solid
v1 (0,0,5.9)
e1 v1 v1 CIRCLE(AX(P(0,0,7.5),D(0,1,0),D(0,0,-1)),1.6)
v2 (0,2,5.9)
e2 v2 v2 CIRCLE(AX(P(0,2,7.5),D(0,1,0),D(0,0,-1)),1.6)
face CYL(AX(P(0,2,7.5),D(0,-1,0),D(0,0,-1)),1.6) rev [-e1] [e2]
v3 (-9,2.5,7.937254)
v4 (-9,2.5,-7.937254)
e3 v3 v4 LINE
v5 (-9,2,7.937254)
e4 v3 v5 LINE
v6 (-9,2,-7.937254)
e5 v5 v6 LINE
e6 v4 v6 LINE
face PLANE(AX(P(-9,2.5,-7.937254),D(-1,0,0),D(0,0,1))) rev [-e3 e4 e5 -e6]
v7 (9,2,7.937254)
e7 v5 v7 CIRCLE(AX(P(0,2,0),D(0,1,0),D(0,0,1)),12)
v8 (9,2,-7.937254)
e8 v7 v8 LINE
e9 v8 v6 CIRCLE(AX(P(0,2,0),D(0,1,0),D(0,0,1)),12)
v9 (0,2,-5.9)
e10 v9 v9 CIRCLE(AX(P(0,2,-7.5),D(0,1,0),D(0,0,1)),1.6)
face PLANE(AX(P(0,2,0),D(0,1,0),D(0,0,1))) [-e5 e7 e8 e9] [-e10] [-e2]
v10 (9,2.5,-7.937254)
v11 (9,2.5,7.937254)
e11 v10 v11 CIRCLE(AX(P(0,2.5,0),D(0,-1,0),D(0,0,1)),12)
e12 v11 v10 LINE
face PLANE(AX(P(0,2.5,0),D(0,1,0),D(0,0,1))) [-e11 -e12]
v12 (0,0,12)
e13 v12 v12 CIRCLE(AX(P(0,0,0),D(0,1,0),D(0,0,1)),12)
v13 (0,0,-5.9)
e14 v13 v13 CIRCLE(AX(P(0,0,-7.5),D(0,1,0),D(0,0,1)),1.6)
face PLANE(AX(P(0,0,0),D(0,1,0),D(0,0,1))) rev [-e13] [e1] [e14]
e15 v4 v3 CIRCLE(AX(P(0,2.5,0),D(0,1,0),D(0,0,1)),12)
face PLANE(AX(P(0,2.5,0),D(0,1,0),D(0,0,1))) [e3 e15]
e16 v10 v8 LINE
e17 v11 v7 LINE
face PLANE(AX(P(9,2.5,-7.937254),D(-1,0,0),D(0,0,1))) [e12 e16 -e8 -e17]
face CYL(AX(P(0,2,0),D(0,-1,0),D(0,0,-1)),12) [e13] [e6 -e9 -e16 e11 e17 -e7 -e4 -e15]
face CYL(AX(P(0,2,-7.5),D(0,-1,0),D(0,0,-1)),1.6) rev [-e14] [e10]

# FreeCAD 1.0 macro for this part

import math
import FreeCAD as App
import Part
import Sketcher
Q = App.Units.Quantity

doc = App.newDocument("Part")
params = doc.addObject("Spreadsheet::Sheet", "Params")
for row, (alias, value) in enumerate([
    ("sketch1_diameter", "24 mm"),
    ("sketch1_diameter2", "3.2 mm"),
    ("pad1_length", "2 mm"),
    ("sketch2_radius", "12 mm"),
    ("pad2_length", "0.5 mm"),
], start=1):
    params.set(f"A{row}", alias)
    params.set(f"B{row}", "=" + value)
    params.setAlias(f"B{row}", alias)

body = doc.addObject("PartDesign::Body", "Body")

sketch1 = body.newObject("Sketcher::SketchObject", "Sketch")
sketch1.AttachmentSupport = (doc.getObject("XZ_Plane"), [""])
sketch1.MapMode = "FlatFace"
sketch1.addGeometry([
    Part.Circle(App.Vector(0, 0, 0), App.Vector(0, 0, 1), 12),
    Part.Circle(App.Vector(0, -7.5, 0), App.Vector(0, 0, 1), 1.6),
    Part.Circle(App.Vector(0, 7.5, 0), App.Vector(0, 0, 1), 1.6),
], False)
sketch1.addConstraint([
    Sketcher.Constraint("Coincident", 0, 3, -1, 1),
    Sketcher.Constraint("Equal", 1, 2),
    Sketcher.Constraint("Symmetric", 1, 3, 2, 3, -1, 1),
    Sketcher.Constraint("PointOnObject", 1, 3, -2),
    Sketcher.Constraint("Diameter", 0, Q("24 mm")),
    Sketcher.Constraint("Diameter", 1, Q("3.2 mm")),
    Sketcher.Constraint("DistanceY", 1, 3, 2, 3, Q("15 mm")),
])
sketch1.setExpression("Constraints[4]", "Params.sketch1_diameter")
sketch1.setExpression("Constraints[5]", "Params.sketch1_diameter2")
pad1 = body.newObject("PartDesign::Pad", "Pad")
pad1.Profile = sketch1
pad1.setExpression("Length", "Params.pad1_length")
pad1.Reversed = True

sketch2 = body.newObject("Sketcher::SketchObject", "Sketch001")
sketch2.AttachmentSupport = (doc.getObject("XZ_Plane"), [""])
sketch2.MapMode = "FlatFace"
sketch2.AttachmentOffset = App.Placement(App.Vector(0, 0, -2), App.Rotation())
sketch2.addGeometry([
    Part.LineSegment(App.Vector(-9, 8, 0), App.Vector(-9, -8, 0)),
    Part.ArcOfCircle(Part.Circle(App.Vector(0, 0, 0), App.Vector(0, 0, 1), 12), math.radians(139), math.radians(221)),
], False)
sketch2.addConstraint([
    Sketcher.Constraint("Coincident", 0, 1, 1, 1),
    Sketcher.Constraint("Coincident", 1, 2, 0, 2),
    Sketcher.Constraint("Vertical", 0),
    Sketcher.Constraint("Coincident", 1, 3, -1, 1),
    Sketcher.Constraint("Radius", 1, Q("12 mm")),
    Sketcher.Constraint("DistanceX", 0, 1, -1, 1, Q("9 mm")),
])
sketch2.setExpression("Constraints[4]", "Params.sketch2_radius")
pad2 = body.newObject("PartDesign::Pad", "Pad001")
pad2.Profile = sketch2
pad2.setExpression("Length", "Params.pad2_length")
pad2.Reversed = True
doc.recompute()

mirrored = body.newObject("PartDesign::Mirrored", "Mirrored")
mirrored.Originals = [pad2]
mirrored.MirrorPlane = (doc.getObject("YZ_Plane"), [""])
body.Tip = mirrored

doc.recompute()
